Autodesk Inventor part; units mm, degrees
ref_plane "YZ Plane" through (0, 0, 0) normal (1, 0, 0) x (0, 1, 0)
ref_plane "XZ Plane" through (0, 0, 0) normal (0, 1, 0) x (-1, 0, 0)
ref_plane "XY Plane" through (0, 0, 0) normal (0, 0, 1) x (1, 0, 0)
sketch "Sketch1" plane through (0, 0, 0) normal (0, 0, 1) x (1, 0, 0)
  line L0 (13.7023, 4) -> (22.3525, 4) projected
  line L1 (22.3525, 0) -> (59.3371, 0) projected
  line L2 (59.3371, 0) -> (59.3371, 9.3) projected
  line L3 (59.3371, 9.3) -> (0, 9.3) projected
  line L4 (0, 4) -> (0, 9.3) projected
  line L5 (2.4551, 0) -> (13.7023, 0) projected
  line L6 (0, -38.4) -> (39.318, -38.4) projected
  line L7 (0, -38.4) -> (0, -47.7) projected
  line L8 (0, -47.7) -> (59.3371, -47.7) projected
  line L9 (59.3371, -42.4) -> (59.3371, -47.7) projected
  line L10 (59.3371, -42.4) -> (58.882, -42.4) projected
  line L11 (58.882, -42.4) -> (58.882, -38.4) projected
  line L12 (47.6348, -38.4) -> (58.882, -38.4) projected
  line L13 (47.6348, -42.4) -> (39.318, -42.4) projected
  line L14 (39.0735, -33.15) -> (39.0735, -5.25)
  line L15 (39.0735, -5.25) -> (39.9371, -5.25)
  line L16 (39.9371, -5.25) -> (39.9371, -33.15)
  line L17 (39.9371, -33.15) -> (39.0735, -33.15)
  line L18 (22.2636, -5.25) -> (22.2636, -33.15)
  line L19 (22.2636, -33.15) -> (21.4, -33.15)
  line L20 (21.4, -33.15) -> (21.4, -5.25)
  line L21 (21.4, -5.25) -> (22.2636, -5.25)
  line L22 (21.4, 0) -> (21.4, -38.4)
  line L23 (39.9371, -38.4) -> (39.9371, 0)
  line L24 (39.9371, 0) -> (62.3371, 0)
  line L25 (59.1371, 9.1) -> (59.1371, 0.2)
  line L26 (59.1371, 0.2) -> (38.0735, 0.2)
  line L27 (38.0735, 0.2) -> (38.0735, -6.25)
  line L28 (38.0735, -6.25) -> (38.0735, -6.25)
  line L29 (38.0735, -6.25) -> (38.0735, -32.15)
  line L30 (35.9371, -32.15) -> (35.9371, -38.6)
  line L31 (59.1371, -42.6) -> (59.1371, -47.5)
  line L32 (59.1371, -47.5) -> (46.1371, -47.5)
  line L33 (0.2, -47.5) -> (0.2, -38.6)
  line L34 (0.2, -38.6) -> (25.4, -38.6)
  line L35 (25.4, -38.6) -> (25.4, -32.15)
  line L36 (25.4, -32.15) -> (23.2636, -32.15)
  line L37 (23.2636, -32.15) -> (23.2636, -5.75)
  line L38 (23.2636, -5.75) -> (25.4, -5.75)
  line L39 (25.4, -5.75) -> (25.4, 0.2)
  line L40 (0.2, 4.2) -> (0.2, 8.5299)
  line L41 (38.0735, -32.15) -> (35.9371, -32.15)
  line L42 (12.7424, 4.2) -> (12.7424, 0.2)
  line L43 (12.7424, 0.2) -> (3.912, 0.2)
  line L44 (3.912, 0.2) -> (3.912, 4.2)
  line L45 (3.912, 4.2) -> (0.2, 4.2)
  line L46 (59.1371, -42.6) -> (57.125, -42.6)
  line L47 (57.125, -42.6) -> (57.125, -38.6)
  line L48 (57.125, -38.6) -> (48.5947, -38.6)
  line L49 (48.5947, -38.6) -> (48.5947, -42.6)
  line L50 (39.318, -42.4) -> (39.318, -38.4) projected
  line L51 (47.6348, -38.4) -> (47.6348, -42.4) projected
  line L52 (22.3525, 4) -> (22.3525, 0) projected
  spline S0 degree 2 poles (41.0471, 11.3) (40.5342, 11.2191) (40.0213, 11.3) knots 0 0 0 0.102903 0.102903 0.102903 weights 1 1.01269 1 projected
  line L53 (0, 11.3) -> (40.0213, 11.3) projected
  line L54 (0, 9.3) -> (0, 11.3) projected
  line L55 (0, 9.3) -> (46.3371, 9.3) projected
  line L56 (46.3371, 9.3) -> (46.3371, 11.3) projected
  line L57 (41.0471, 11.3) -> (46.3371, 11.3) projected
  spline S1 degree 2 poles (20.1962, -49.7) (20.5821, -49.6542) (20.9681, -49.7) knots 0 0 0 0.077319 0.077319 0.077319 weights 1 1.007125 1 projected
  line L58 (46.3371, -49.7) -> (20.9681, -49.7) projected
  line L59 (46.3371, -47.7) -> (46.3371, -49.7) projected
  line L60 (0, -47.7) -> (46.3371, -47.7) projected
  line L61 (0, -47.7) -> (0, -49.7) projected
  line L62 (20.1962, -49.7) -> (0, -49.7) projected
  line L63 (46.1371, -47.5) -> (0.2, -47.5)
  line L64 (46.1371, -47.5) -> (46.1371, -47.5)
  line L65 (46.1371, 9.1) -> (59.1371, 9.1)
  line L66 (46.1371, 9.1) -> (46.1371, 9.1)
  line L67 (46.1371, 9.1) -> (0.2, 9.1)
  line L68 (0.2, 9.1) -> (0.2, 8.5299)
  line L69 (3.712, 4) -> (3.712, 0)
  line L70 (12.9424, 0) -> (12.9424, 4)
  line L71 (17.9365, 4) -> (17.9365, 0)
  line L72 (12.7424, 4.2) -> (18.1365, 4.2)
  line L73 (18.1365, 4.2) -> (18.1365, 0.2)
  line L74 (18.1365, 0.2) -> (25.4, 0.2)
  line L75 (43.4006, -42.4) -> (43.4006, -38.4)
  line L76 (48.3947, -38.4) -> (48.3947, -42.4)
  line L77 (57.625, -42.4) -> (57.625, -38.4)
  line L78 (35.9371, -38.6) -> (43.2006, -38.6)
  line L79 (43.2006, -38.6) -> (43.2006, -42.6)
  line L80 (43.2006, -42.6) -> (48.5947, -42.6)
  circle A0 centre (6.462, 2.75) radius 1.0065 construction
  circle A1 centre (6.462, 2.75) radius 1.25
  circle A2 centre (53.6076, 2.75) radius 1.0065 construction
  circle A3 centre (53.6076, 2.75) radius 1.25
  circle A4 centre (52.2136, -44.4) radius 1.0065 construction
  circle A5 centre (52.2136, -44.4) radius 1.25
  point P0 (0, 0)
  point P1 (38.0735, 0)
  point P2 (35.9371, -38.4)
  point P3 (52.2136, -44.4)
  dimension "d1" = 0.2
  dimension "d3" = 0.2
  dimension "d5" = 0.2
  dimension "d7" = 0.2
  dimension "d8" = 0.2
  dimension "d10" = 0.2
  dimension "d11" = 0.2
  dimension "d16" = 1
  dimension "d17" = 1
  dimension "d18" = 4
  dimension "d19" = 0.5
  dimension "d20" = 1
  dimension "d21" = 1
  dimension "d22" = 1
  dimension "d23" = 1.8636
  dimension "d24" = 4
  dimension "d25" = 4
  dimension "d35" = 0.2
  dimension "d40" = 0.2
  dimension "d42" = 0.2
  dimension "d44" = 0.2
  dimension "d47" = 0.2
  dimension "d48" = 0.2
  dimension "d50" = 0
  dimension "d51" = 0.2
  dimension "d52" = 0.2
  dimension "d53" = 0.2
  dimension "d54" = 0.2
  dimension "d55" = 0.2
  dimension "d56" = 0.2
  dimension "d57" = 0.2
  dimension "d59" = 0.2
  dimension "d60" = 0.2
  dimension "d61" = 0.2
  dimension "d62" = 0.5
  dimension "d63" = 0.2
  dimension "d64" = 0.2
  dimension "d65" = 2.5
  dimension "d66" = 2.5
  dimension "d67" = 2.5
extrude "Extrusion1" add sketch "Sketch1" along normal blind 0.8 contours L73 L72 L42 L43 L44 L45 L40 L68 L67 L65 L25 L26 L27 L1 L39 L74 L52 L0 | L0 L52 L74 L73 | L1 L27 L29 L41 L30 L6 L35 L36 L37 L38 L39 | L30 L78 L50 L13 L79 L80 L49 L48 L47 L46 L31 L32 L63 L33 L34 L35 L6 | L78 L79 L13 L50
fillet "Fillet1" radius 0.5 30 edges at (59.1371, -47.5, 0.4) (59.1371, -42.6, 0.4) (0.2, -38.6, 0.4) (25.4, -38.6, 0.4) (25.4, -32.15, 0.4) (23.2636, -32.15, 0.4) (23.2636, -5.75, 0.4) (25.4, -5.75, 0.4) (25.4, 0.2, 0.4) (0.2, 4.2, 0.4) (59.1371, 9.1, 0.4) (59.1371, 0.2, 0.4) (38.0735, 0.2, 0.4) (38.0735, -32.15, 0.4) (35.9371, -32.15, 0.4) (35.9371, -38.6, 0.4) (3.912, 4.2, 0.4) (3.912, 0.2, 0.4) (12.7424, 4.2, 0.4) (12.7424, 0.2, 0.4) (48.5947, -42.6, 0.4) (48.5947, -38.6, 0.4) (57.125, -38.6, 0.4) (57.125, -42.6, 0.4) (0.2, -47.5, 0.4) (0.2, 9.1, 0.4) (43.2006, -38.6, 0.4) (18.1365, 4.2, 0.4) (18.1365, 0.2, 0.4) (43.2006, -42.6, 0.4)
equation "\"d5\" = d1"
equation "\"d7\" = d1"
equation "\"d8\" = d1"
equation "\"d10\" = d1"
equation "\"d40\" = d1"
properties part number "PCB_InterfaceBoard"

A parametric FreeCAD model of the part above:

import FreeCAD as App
import Part
import Sketcher
Q = App.Units.Quantity


def edges_at(feature, points):
    """Names of the edges that pass closest to the given points."""
    edges = feature.Shape.Edges
    near = lambda p: min(range(len(edges)), key=lambda i: edges[i].distToShape(Part.Vertex(*p))[0])
    return sorted({f"Edge{near(p) + 1}" for p in points})


def add_polygon(sketch, points):
    """Adds a closed chain of lines whose ends are joined by coincident constraints."""
    first, n = sketch.GeometryCount, len(points)
    for a, b in zip(points, points[1:] + points[:1]):
        sketch.addGeometry(Part.LineSegment(App.Vector(*a, 0), App.Vector(*b, 0)), False)
    for i in range(n):
        sketch.addConstraint(Sketcher.Constraint("Coincident", first + i, 2, first + (i + 1) % n, 1))

doc = App.newDocument("Part")
body = doc.addObject("PartDesign::Body", "Body")

sketch1 = doc.addObject("Sketcher::SketchObject", "Sketch")
body.addObject(sketch1)
sketch1.AttachmentSupport = (doc.XY_Plane, [""])
sketch1.MapMode = "FlatFace"
add_polygon(sketch1, [(18.1365, 4.2), (18.1365, 0.2), (25.4, 0.2), (25.4, -5.75), (23.2636, -5.75), (23.2636, -32.15), (25.4, -32.15), (25.4, -38.6), (0.2, -38.6), (0.2, -47.5), (59.1371, -47.5), (59.1371, -42.6), (57.125, -42.6), (57.125, -38.6), (48.5947, -38.6), (48.5947, -42.6), (43.2006, -42.6), (43.2006, -38.6), (35.9371, -38.6), (35.9371, -32.15), (38.0735, -32.15), (38.0735, 0.2), (59.1371, 0.2), (59.1371, 9.1), (0.2, 9.1), (0.2, 4.2), (3.912, 4.2), (3.912, 0.2), (12.7424, 0.2), (12.7424, 4.2)])
sketch1.addGeometry(Part.Circle(App.Vector(6.462, 2.75, 0), App.Vector(0, 0, 1), 1.25), False)
sketch1.addGeometry(Part.Circle(App.Vector(53.6076, 2.75, 0), App.Vector(0, 0, 1), 1.25), False)
sketch1.addGeometry(Part.Circle(App.Vector(52.2136, -44.4, 0), App.Vector(0, 0, 1), 1.25), False)
sketch1.addConstraint(Sketcher.Constraint("Vertical", 0))
sketch1.addConstraint(Sketcher.Constraint("Horizontal", 1))
sketch1.addConstraint(Sketcher.Constraint("Vertical", 2))
sketch1.addConstraint(Sketcher.Constraint("Horizontal", 3))
sketch1.addConstraint(Sketcher.Constraint("Vertical", 4))
sketch1.addConstraint(Sketcher.Constraint("Horizontal", 5))
sketch1.addConstraint(Sketcher.Constraint("Vertical", 6))
sketch1.addConstraint(Sketcher.Constraint("Horizontal", 7))
sketch1.addConstraint(Sketcher.Constraint("Vertical", 8))
sketch1.addConstraint(Sketcher.Constraint("Horizontal", 9))
sketch1.addConstraint(Sketcher.Constraint("Vertical", 10))
sketch1.addConstraint(Sketcher.Constraint("Horizontal", 11))
sketch1.addConstraint(Sketcher.Constraint("Vertical", 12))
sketch1.addConstraint(Sketcher.Constraint("Horizontal", 13))
sketch1.addConstraint(Sketcher.Constraint("Vertical", 14))
sketch1.addConstraint(Sketcher.Constraint("Horizontal", 15))
sketch1.addConstraint(Sketcher.Constraint("Vertical", 16))
sketch1.addConstraint(Sketcher.Constraint("Horizontal", 17))
sketch1.addConstraint(Sketcher.Constraint("Vertical", 18))
sketch1.addConstraint(Sketcher.Constraint("Horizontal", 19))
sketch1.addConstraint(Sketcher.Constraint("Vertical", 20))
sketch1.addConstraint(Sketcher.Constraint("Horizontal", 21))
sketch1.addConstraint(Sketcher.Constraint("Vertical", 22))
sketch1.addConstraint(Sketcher.Constraint("Horizontal", 23))
sketch1.addConstraint(Sketcher.Constraint("Vertical", 24))
sketch1.addConstraint(Sketcher.Constraint("Horizontal", 25))
sketch1.addConstraint(Sketcher.Constraint("Vertical", 26))
sketch1.addConstraint(Sketcher.Constraint("Horizontal", 27))
sketch1.addConstraint(Sketcher.Constraint("Vertical", 28))
sketch1.addConstraint(Sketcher.Constraint("Horizontal", 29))
sketch1.addConstraint(Sketcher.Constraint("Equal", 30, 31))
sketch1.addConstraint(Sketcher.Constraint("Equal", 31, 32))
sketch1.addConstraint(Sketcher.Constraint("Horizontal", 30, 3, 31, 3))
sketch1.addConstraint(Sketcher.Constraint("Horizontal", 7, 2, 12, 2))
sketch1.addConstraint(Sketcher.Constraint("Horizontal", 11, 2, 14, 2))
sketch1.addConstraint(Sketcher.Constraint("Horizontal", 13, 2, 16, 2))
sketch1.addConstraint(Sketcher.Constraint("Horizontal", 5, 2, 18, 2))
sketch1.addConstraint(Sketcher.Constraint("Horizontal", 1, 2, 20, 2))
sketch1.addConstraint(Sketcher.Constraint("Horizontal", 21, 2, 26, 2))
sketch1.addConstraint(Sketcher.Constraint("Horizontal", 25, 2, 28, 2))
sketch1.addConstraint(Sketcher.Constraint("Vertical", 2, 2, 5, 2))
sketch1.addConstraint(Sketcher.Constraint("Vertical", 10, 2, 21, 2))
sketch1.addConstraint(Sketcher.Constraint("Vertical", 8, 2, 23, 2))
sketch1.addConstraint(Sketcher.Constraint("Equal", 1, 17))
sketch1.addConstraint(Sketcher.Constraint("Equal", 5, 19))
sketch1.addConstraint(Sketcher.Constraint("Equal", 15, 29))
sketch1.addConstraint(Sketcher.Constraint("Equal", 0, 12))
sketch1.addConstraint(Sketcher.Constraint("Equal", 8, 22))
sketch1.addConstraint(Sketcher.Constraint("Diameter", 30, Q("2.5 mm")))
sketch1.addConstraint(Sketcher.Constraint("DistanceY", 0, 2, 0, 1, Q("4 mm")))
sketch1.addConstraint(Sketcher.Constraint("DistanceY", -1, 1, 0, 2, Q("0.2 mm")))
sketch1.addConstraint(Sketcher.Constraint("DistanceX", -1, 1, 7, 2, Q("0.2 mm")))
sketch1.addConstraint(Sketcher.Constraint("DistanceX", 7, 2, 7, 1, Q("25.2 mm")))
sketch1.addConstraint(Sketcher.Constraint("DistanceY", 4, 2, 4, 1, Q("26.4 mm")))
sketch1.addConstraint(Sketcher.Constraint("DistanceY", 8, 2, 8, 1, Q("8.9 mm")))
sketch1.addConstraint(Sketcher.Constraint("DistanceY", 2, 2, 2, 1, Q("5.95 mm")))
sketch1.addConstraint(Sketcher.Constraint("DistanceY", 6, 2, 6, 1, Q("6.45 mm")))
sketch1.addConstraint(Sketcher.Constraint("DistanceY", 32, 3, -1, 1, Q("44.4 mm")))
sketch1.addConstraint(Sketcher.Constraint("DistanceY", 2, 2, 30, 3, Q("8.5 mm")))
sketch1.addConstraint(Sketcher.Constraint("DistanceX", 9, 1, 9, 2, Q("58.937 mm")))
sketch1.addConstraint(Sketcher.Constraint("DistanceX", 11, 2, 11, 1, Q("2.012 mm")))
sketch1.addConstraint(Sketcher.Constraint("DistanceX", 15, 2, 15, 1, Q("5.394 mm")))
sketch1.addConstraint(Sketcher.Constraint("DistanceX", 25, 1, 25, 2, Q("3.712 mm")))
sketch1.addConstraint(Sketcher.Constraint("DistanceX", 4, 2, 32, 3, Q("28.95 mm")))
sketch1.addConstraint(Sketcher.Constraint("DistanceX", 3, 2, 20, 2, Q("14.81 mm")))
sketch1.addConstraint(Sketcher.Constraint("DistanceX", 25, 2, 30, 3, Q("2.55 mm")))
sketch1.addConstraint(Sketcher.Constraint("DistanceX", 1, 1, 1, 2, Q("7.2635 mm")))
sketch1.addConstraint(Sketcher.Constraint("DistanceX", 3, 2, 3, 1, Q("2.1364 mm")))
sketch1.addConstraint(Sketcher.Constraint("DistanceX", 32, 3, 31, 3, Q("1.394 mm")))
pad1 = doc.addObject("PartDesign::Pad", "Pad")
body.addObject(pad1)
pad1.Profile = sketch1
pad1.Length = 0.8
doc.recompute()

fillet = doc.addObject("PartDesign::Fillet", "Fillet")
body.addObject(fillet)
fillet.Base = (pad1, edges_at(pad1, [
    (59.137, -47.5, 0.4),
    (59.137, -42.6, 0.4),
    (0.2, -38.6, 0.4),
    (25.4, -38.6, 0.4),
    (25.4, -32.15, 0.4),
    (23.264, -32.15, 0.4),
    (23.264, -5.75, 0.4),
    (25.4, -5.75, 0.4),
    (25.4, 0.2, 0.4),
    (0.2, 4.2, 0.4),
    (59.137, 9.1, 0.4),
    (59.137, 0.2, 0.4),
    (38.074, 0.2, 0.4),
    (38.074, -32.15, 0.4),
    (35.937, -32.15, 0.4),
    (35.937, -38.6, 0.4),
    (3.912, 4.2, 0.4),
    (3.912, 0.2, 0.4),
    (12.742, 4.2, 0.4),
    (12.742, 0.2, 0.4),
    (48.595, -42.6, 0.4),
    (48.595, -38.6, 0.4),
    (57.125, -38.6, 0.4),
    (57.125, -42.6, 0.4),
    (0.2, -47.5, 0.4),
    (0.2, 9.1, 0.4),
    (43.201, -38.6, 0.4),
    (18.137, 4.2, 0.4),
    (18.137, 0.2, 0.4),
    (43.201, -42.6, 0.4),
]))
fillet.Radius = 0.5

doc.recompute()
